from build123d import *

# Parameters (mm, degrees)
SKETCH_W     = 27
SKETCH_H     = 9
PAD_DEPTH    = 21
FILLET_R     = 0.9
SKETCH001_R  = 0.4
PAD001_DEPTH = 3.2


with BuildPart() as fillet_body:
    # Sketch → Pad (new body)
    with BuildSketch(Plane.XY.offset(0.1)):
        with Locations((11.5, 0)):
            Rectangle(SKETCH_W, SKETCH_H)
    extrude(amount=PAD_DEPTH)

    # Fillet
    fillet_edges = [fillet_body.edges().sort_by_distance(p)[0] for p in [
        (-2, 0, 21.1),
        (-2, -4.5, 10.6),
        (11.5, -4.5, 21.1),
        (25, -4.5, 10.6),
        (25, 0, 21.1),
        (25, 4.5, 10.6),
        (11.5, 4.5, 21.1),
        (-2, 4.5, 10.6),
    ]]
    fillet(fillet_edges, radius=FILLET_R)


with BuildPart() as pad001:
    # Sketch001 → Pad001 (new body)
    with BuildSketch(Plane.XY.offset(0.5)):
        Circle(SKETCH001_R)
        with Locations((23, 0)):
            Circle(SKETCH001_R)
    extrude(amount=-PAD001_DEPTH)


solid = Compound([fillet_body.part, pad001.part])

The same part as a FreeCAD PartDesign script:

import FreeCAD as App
import Part
import Sketcher
from FreeCAD import Vector
Q = App.Units.Quantity


def edges_at(feature, points):
    """Names of the edges that pass closest to the given points."""
    edges = feature.Shape.Edges
    near = lambda p: min(range(len(edges)), key=lambda i: edges[i].distToShape(Part.Vertex(*p))[0])
    return sorted({f"Edge{near(p) + 1}" for p in points})


def add_polygon(sketch, points):
    """Adds a closed chain of lines whose ends are joined by coincident constraints."""
    first, n = sketch.GeometryCount, len(points)
    for a, b in zip(points, points[1:] + points[:1]):
        sketch.addGeometry(Part.LineSegment(App.Vector(*a, 0), App.Vector(*b, 0)), False)
    for i in range(n):
        sketch.addConstraint(Sketcher.Constraint("Coincident", first + i, 2, first + (i + 1) % n, 1))

doc = App.newDocument("Part")
body = doc.addObject("PartDesign::Body", "Body")

sketch1 = doc.addObject("Sketcher::SketchObject", "Sketch")
body.addObject(sketch1)
sketch1.AttachmentSupport = (doc.XY_Plane, [""])
sketch1.MapMode = "FlatFace"
sketch1.AttachmentOffset = App.Placement(Vector(0, 0, 0.1), App.Rotation())
add_polygon(sketch1, [(-2, 4), (-2, -4), (25, -4), (25, 4)])
sketch1.addConstraint([
    Sketcher.Constraint("Vertical", 0),
    Sketcher.Constraint("Horizontal", 1),
    Sketcher.Constraint("Vertical", 2),
    Sketcher.Constraint("Horizontal", 3),
    Sketcher.Constraint("DistanceX", 1, 1, 1, 2, Q("27 mm")),
    Sketcher.Constraint("DistanceY", 0, 2, 0, 1, Q("9 mm")),
    Sketcher.Constraint("DistanceX", 0, 2, -1, 1, Q("2 mm")),
    Sketcher.Constraint("DistanceY", 0, 2, -1, 1, Q("4.5 mm")),
])
pad1 = doc.addObject("PartDesign::Pad", "Pad")
body.addObject(pad1)
pad1.Profile = sketch1
pad1.Length = 21
doc.recompute()

fillet = doc.addObject("PartDesign::Fillet", "Fillet")
body.addObject(fillet)
fillet.Base = (pad1, edges_at(pad1, [
    (-2, 0, 21.1),
    (-2, -4.5, 10.6),
    (11.5, -4.5, 21.1),
    (25, -4.5, 10.6),
    (25, 0, 21.1),
    (25, 4.5, 10.6),
    (11.5, 4.5, 21.1),
    (-2, 4.5, 10.6),
]))
fillet.Radius = 0.9
body2 = doc.addObject("PartDesign::Body", "Body001")
body2.AllowCompound = True

sketch2 = doc.addObject("Sketcher::SketchObject", "Sketch001")
body2.addObject(sketch2)
sketch2.AttachmentSupport = (doc.getObject("XY_Plane001"), [""])
sketch2.MapMode = "FlatFace"
sketch2.AttachmentOffset = App.Placement(Vector(0, 0, 0.5), App.Rotation())
sketch2.addGeometry([
    Part.Circle(Vector(0, 0, 0), Vector(0, 0, 1), 0.4),
    Part.Circle(Vector(23, 0, 0), Vector(0, 0, 1), 0.4),
], False)
sketch2.addConstraint([
    Sketcher.Constraint("Coincident", 0, 3, -1, 1),
    Sketcher.Constraint("Equal", 0, 1),
    Sketcher.Constraint("PointOnObject", 1, 3, -1),
    Sketcher.Constraint("Diameter", 0, Q("0.8 mm")),
    Sketcher.Constraint("DistanceX", -1, 1, 1, 3, Q("23 mm")),
])
pad2 = doc.addObject("PartDesign::Pad", "Pad001")
body2.addObject(pad2)
pad2.Profile = sketch2
pad2.Length = 3.2
pad2.Reversed = True

doc.recompute()
